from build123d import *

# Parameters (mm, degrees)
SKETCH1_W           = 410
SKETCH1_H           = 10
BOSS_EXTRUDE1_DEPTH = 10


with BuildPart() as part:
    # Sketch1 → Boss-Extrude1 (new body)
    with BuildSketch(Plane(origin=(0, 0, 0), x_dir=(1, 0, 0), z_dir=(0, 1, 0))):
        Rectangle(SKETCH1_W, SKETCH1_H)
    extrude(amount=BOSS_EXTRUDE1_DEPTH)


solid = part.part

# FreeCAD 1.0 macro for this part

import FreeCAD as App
import Part
import Sketcher


def add_polygon(sketch, points):
    """Adds a closed chain of lines whose ends are joined by coincident constraints."""
    first, n = sketch.GeometryCount, len(points)
    for a, b in zip(points, points[1:] + points[:1]):
        sketch.addGeometry(Part.LineSegment(App.Vector(*a, 0), App.Vector(*b, 0)), False)
    for i in range(n):
        sketch.addConstraint(Sketcher.Constraint("Coincident", first + i, 2, first + (i + 1) % n, 1))

doc = App.newDocument("Part")
params = doc.addObject("Spreadsheet::Sheet", "Params")
for row, (alias, value) in enumerate([
    ("sketch1_width", "410 mm"),
    ("sketch1_height", "10 mm"),
    ("pad1_length", "10 mm"),
], start=1):
    params.set(f"A{row}", alias)
    params.set(f"B{row}", "=" + value)
    params.setAlias(f"B{row}", alias)

body = doc.addObject("PartDesign::Body", "Body")

# Sketch on XZ plane
sketch1 = doc.addObject("Sketcher::SketchObject", "Sketch")
body.addObject(sketch1)
sketch1.AttachmentSupport = (doc.XZ_Plane, [""])
sketch1.MapMode = "FlatFace"
add_polygon(sketch1, [(-205, -5), (-205, 5), (205, 5), (205, -5)])  # lines 0-3
sketch1.addConstraint([
    Sketcher.Constraint("Vertical", 0),
    Sketcher.Constraint("Horizontal", 1),
    Sketcher.Constraint("Vertical", 2),
    Sketcher.Constraint("Horizontal", 3),
    Sketcher.Constraint("Symmetric", 0, 2, 2, 2, -1, 1),
    Sketcher.Constraint("DistanceX", 1, 1, 1, 2, 410.0),
    Sketcher.Constraint("DistanceY", 0, 1, 0, 2, 10.0),
])
sketch1.setExpression("Constraints[9]", "Params.sketch1_width")
sketch1.setExpression("Constraints[10]", "Params.sketch1_height")
pad1 = doc.addObject("PartDesign::Pad", "Pad")
body.addObject(pad1)
pad1.Profile = sketch1
pad1.setExpression("Length", "Params.pad1_length")
pad1.Reversed = True

doc.recompute()
